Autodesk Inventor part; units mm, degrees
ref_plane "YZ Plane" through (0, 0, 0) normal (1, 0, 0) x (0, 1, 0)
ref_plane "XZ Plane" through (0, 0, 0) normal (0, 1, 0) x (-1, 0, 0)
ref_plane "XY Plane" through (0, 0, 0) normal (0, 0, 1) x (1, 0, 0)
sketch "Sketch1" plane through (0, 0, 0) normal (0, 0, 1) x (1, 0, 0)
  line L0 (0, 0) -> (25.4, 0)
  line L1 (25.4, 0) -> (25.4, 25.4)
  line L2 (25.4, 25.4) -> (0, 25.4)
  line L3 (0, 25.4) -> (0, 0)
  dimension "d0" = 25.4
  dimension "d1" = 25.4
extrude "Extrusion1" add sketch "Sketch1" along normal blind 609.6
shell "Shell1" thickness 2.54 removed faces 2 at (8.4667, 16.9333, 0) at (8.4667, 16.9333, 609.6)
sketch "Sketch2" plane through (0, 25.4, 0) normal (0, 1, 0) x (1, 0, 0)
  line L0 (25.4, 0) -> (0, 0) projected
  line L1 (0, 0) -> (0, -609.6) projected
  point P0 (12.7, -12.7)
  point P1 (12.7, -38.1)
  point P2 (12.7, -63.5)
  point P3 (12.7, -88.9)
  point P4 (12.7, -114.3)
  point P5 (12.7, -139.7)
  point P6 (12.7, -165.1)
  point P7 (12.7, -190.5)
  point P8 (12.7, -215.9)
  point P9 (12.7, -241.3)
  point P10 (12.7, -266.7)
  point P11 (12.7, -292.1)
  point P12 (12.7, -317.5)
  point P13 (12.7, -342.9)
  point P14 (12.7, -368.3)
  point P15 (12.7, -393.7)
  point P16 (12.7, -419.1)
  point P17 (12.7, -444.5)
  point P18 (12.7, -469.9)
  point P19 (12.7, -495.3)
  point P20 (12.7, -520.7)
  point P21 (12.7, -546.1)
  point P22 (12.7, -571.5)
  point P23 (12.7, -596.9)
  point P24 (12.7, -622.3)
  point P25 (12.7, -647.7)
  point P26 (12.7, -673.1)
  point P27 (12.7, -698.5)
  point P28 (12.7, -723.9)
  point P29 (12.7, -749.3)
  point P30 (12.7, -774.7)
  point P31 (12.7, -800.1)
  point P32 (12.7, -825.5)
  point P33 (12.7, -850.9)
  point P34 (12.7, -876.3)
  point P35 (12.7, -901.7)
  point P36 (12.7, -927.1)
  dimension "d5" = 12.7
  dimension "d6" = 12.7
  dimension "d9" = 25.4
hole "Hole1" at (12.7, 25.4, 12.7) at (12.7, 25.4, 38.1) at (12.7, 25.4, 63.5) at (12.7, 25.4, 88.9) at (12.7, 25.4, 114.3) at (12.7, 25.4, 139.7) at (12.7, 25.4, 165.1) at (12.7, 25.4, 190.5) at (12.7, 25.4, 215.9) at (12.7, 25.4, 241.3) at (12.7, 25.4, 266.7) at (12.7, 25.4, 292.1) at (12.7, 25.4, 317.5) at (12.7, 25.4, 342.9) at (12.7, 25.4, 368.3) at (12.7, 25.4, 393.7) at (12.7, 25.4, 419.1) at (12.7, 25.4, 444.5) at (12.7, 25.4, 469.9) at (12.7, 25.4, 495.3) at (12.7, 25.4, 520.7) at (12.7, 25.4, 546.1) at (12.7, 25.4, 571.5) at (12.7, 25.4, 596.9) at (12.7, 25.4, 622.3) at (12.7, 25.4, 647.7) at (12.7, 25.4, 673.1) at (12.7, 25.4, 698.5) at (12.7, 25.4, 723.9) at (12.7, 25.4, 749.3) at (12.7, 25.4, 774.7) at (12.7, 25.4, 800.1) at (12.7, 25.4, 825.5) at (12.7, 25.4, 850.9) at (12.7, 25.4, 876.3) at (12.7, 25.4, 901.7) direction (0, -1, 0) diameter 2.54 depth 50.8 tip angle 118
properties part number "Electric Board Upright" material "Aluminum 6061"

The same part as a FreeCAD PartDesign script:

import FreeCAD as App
import Part
import Sketcher
from FreeCAD import Vector
Q = App.Units.Quantity


def faces_at(feature, points):
    """Names of the faces that lie closest to the given points."""
    faces = feature.Shape.Faces
    near = lambda p: min(range(len(faces)), key=lambda i: faces[i].distToShape(Part.Vertex(*p))[0])
    return sorted({f"Face{near(p) + 1}" for p in points})


def add_polygon(sketch, points):
    """Adds a closed chain of lines whose ends are joined by coincident constraints."""
    first, n = sketch.GeometryCount, len(points)
    for a, b in zip(points, points[1:] + points[:1]):
        sketch.addGeometry(Part.LineSegment(App.Vector(*a, 0), App.Vector(*b, 0)), False)
    for i in range(n):
        sketch.addConstraint(Sketcher.Constraint("Coincident", first + i, 2, first + (i + 1) % n, 1))

doc = App.newDocument("Part")
body = doc.addObject("PartDesign::Body", "Body")

# Sketch on XY plane
sketch1 = doc.addObject("Sketcher::SketchObject", "Sketch")
body.addObject(sketch1)
sketch1.AttachmentSupport = (doc.XY_Plane, [""])
sketch1.MapMode = "FlatFace"
add_polygon(sketch1, [(0, 25.4), (0, 0), (25.4, 0), (25.4, 25.4)])  # lines 0-3
sketch1.addConstraint(Sketcher.Constraint("Vertical", 0))
sketch1.addConstraint(Sketcher.Constraint("Horizontal", 1))
sketch1.addConstraint(Sketcher.Constraint("Vertical", 2))
sketch1.addConstraint(Sketcher.Constraint("Horizontal", 3))
sketch1.addConstraint(Sketcher.Constraint("Coincident", 0, 2, -1, 1))
sketch1.addConstraint(Sketcher.Constraint("Equal", 3, 0))
sketch1.addConstraint(Sketcher.Constraint("DistanceX", 1, 1, 1, 2, Q("1 in")))
pad1 = doc.addObject("PartDesign::Pad", "Pad")
body.addObject(pad1)
pad1.Profile = sketch1
pad1.Length = Q("24 in")
doc.recompute()

thickness = doc.addObject("PartDesign::Thickness", "Thickness")
body.addObject(thickness)
thickness.Base = (pad1, faces_at(pad1, [(8.467, 16.933, 0), (8.467, 16.933, 609.6)]))
thickness.Value = Q("0.1 in")
thickness.Reversed = True
thickness.Join = "Intersection"

# Sketch on XZ plane
sketch2 = doc.addObject("Sketcher::SketchObject", "Sketch001")
body.addObject(sketch2)
sketch2.AttachmentSupport = (doc.XZ_Plane, [""])
sketch2.MapMode = "FlatFace"
sketch2.AttachmentOffset = App.Placement(Vector(0, 0, -1 * 25.4), App.Rotation())
sketch2.addGeometry(Part.Circle(Vector(12.7, 12.7, 0), Vector(0, 0, 1), 1.27), False)
sketch2.addGeometry(Part.Circle(Vector(12.7, 38.1, 0), Vector(0, 0, 1), 1.27), False)
sketch2.addGeometry(Part.Circle(Vector(12.7, 63.5, 0), Vector(0, 0, 1), 1.27), False)
sketch2.addGeometry(Part.Circle(Vector(12.7, 88.9, 0), Vector(0, 0, 1), 1.27), False)
sketch2.addGeometry(Part.Circle(Vector(12.7, 114.3, 0), Vector(0, 0, 1), 1.27), False)
sketch2.addGeometry(Part.Circle(Vector(12.7, 139.7, 0), Vector(0, 0, 1), 1.27), False)
sketch2.addGeometry(Part.Circle(Vector(12.7, 165.1, 0), Vector(0, 0, 1), 1.27), False)
sketch2.addGeometry(Part.Circle(Vector(12.7, 190.5, 0), Vector(0, 0, 1), 1.27), False)
sketch2.addGeometry(Part.Circle(Vector(12.7, 215.9, 0), Vector(0, 0, 1), 1.27), False)
sketch2.addGeometry(Part.Circle(Vector(12.7, 241.3, 0), Vector(0, 0, 1), 1.27), False)
sketch2.addGeometry(Part.Circle(Vector(12.7, 266.7, 0), Vector(0, 0, 1), 1.27), False)
sketch2.addGeometry(Part.Circle(Vector(12.7, 292.1, 0), Vector(0, 0, 1), 1.27), False)
sketch2.addGeometry(Part.Circle(Vector(12.7, 317.5, 0), Vector(0, 0, 1), 1.27), False)
sketch2.addGeometry(Part.Circle(Vector(12.7, 342.9, 0), Vector(0, 0, 1), 1.27), False)
sketch2.addGeometry(Part.Circle(Vector(12.7, 368.3, 0), Vector(0, 0, 1), 1.27), False)
sketch2.addGeometry(Part.Circle(Vector(12.7, 393.7, 0), Vector(0, 0, 1), 1.27), False)
sketch2.addGeometry(Part.Circle(Vector(12.7, 419.1, 0), Vector(0, 0, 1), 1.27), False)
sketch2.addGeometry(Part.Circle(Vector(12.7, 444.5, 0), Vector(0, 0, 1), 1.27), False)
sketch2.addGeometry(Part.Circle(Vector(12.7, 469.9, 0), Vector(0, 0, 1), 1.27), False)
sketch2.addGeometry(Part.Circle(Vector(12.7, 495.3, 0), Vector(0, 0, 1), 1.27), False)
sketch2.addGeometry(Part.Circle(Vector(12.7, 520.7, 0), Vector(0, 0, 1), 1.27), False)
sketch2.addGeometry(Part.Circle(Vector(12.7, 546.1, 0), Vector(0, 0, 1), 1.27), False)
sketch2.addGeometry(Part.Circle(Vector(12.7, 571.5, 0), Vector(0, 0, 1), 1.27), False)
sketch2.addGeometry(Part.Circle(Vector(12.7, 596.9, 0), Vector(0, 0, 1), 1.27), False)
sketch2.addGeometry(Part.Circle(Vector(12.7, 622.3, 0), Vector(0, 0, 1), 1.27), False)
sketch2.addGeometry(Part.Circle(Vector(12.7, 647.7, 0), Vector(0, 0, 1), 1.27), False)
sketch2.addGeometry(Part.Circle(Vector(12.7, 673.1, 0), Vector(0, 0, 1), 1.27), False)
sketch2.addGeometry(Part.Circle(Vector(12.7, 698.5, 0), Vector(0, 0, 1), 1.27), False)
sketch2.addGeometry(Part.Circle(Vector(12.7, 723.9, 0), Vector(0, 0, 1), 1.27), False)
sketch2.addGeometry(Part.Circle(Vector(12.7, 749.3, 0), Vector(0, 0, 1), 1.27), False)
sketch2.addGeometry(Part.Circle(Vector(12.7, 774.7, 0), Vector(0, 0, 1), 1.27), False)
sketch2.addGeometry(Part.Circle(Vector(12.7, 800.1, 0), Vector(0, 0, 1), 1.27), False)
sketch2.addGeometry(Part.Circle(Vector(12.7, 825.5, 0), Vector(0, 0, 1), 1.27), False)
sketch2.addGeometry(Part.Circle(Vector(12.7, 850.9, 0), Vector(0, 0, 1), 1.27), False)
sketch2.addGeometry(Part.Circle(Vector(12.7, 876.3, 0), Vector(0, 0, 1), 1.27), False)
sketch2.addGeometry(Part.Circle(Vector(12.7, 901.7, 0), Vector(0, 0, 1), 1.27), False)
sketch2.addConstraint(Sketcher.Constraint("Equal", 0, 1))
sketch2.addConstraint(Sketcher.Constraint("Equal", 1, 2))
sketch2.addConstraint(Sketcher.Constraint("Equal", 2, 3))
sketch2.addConstraint(Sketcher.Constraint("Equal", 3, 4))
sketch2.addConstraint(Sketcher.Constraint("Equal", 4, 5))
sketch2.addConstraint(Sketcher.Constraint("Equal", 5, 6))
sketch2.addConstraint(Sketcher.Constraint("Equal", 6, 7))
sketch2.addConstraint(Sketcher.Constraint("Equal", 7, 8))
sketch2.addConstraint(Sketcher.Constraint("Equal", 8, 9))
sketch2.addConstraint(Sketcher.Constraint("Equal", 9, 10))
sketch2.addConstraint(Sketcher.Constraint("Equal", 10, 11))
sketch2.addConstraint(Sketcher.Constraint("Equal", 11, 12))
sketch2.addConstraint(Sketcher.Constraint("Equal", 12, 13))
sketch2.addConstraint(Sketcher.Constraint("Equal", 13, 14))
sketch2.addConstraint(Sketcher.Constraint("Equal", 14, 15))
sketch2.addConstraint(Sketcher.Constraint("Equal", 15, 16))
sketch2.addConstraint(Sketcher.Constraint("Equal", 16, 17))
sketch2.addConstraint(Sketcher.Constraint("Equal", 17, 18))
sketch2.addConstraint(Sketcher.Constraint("Equal", 18, 19))
sketch2.addConstraint(Sketcher.Constraint("Equal", 19, 20))
sketch2.addConstraint(Sketcher.Constraint("Equal", 20, 21))
sketch2.addConstraint(Sketcher.Constraint("Equal", 21, 22))
sketch2.addConstraint(Sketcher.Constraint("Equal", 22, 23))
sketch2.addConstraint(Sketcher.Constraint("Equal", 23, 24))
sketch2.addConstraint(Sketcher.Constraint("Equal", 24, 25))
sketch2.addConstraint(Sketcher.Constraint("Equal", 25, 26))
sketch2.addConstraint(Sketcher.Constraint("Equal", 26, 27))
sketch2.addConstraint(Sketcher.Constraint("Equal", 27, 28))
sketch2.addConstraint(Sketcher.Constraint("Equal", 28, 29))
sketch2.addConstraint(Sketcher.Constraint("Equal", 29, 30))
sketch2.addConstraint(Sketcher.Constraint("Equal", 30, 31))
sketch2.addConstraint(Sketcher.Constraint("Equal", 31, 32))
sketch2.addConstraint(Sketcher.Constraint("Equal", 32, 33))
sketch2.addConstraint(Sketcher.Constraint("Equal", 33, 34))
sketch2.addConstraint(Sketcher.Constraint("Equal", 34, 35))
sketch2.addConstraint(Sketcher.Constraint("Vertical", 0, 3, 1, 3))
sketch2.addConstraint(Sketcher.Constraint("Vertical", 1, 3, 2, 3))
sketch2.addConstraint(Sketcher.Constraint("Vertical", 2, 3, 3, 3))
sketch2.addConstraint(Sketcher.Constraint("Vertical", 3, 3, 4, 3))
sketch2.addConstraint(Sketcher.Constraint("Vertical", 4, 3, 5, 3))
sketch2.addConstraint(Sketcher.Constraint("Vertical", 5, 3, 6, 3))
sketch2.addConstraint(Sketcher.Constraint("Vertical", 6, 3, 7, 3))
sketch2.addConstraint(Sketcher.Constraint("Vertical", 7, 3, 8, 3))
sketch2.addConstraint(Sketcher.Constraint("Vertical", 8, 3, 9, 3))
sketch2.addConstraint(Sketcher.Constraint("Vertical", 9, 3, 10, 3))
sketch2.addConstraint(Sketcher.Constraint("Vertical", 10, 3, 11, 3))
sketch2.addConstraint(Sketcher.Constraint("Vertical", 11, 3, 12, 3))
sketch2.addConstraint(Sketcher.Constraint("Vertical", 12, 3, 13, 3))
sketch2.addConstraint(Sketcher.Constraint("Vertical", 13, 3, 14, 3))
sketch2.addConstraint(Sketcher.Constraint("Vertical", 14, 3, 15, 3))
sketch2.addConstraint(Sketcher.Constraint("Vertical", 15, 3, 16, 3))
sketch2.addConstraint(Sketcher.Constraint("Vertical", 16, 3, 17, 3))
sketch2.addConstraint(Sketcher.Constraint("Vertical", 17, 3, 18, 3))
sketch2.addConstraint(Sketcher.Constraint("Vertical", 18, 3, 19, 3))
sketch2.addConstraint(Sketcher.Constraint("Vertical", 19, 3, 20, 3))
sketch2.addConstraint(Sketcher.Constraint("Vertical", 20, 3, 21, 3))
sketch2.addConstraint(Sketcher.Constraint("Vertical", 21, 3, 22, 3))
sketch2.addConstraint(Sketcher.Constraint("Vertical", 22, 3, 23, 3))
sketch2.addConstraint(Sketcher.Constraint("Vertical", 23, 3, 24, 3))
sketch2.addConstraint(Sketcher.Constraint("Vertical", 24, 3, 25, 3))
sketch2.addConstraint(Sketcher.Constraint("Vertical", 25, 3, 26, 3))
sketch2.addConstraint(Sketcher.Constraint("Vertical", 26, 3, 27, 3))
sketch2.addConstraint(Sketcher.Constraint("Vertical", 27, 3, 28, 3))
sketch2.addConstraint(Sketcher.Constraint("Vertical", 28, 3, 29, 3))
sketch2.addConstraint(Sketcher.Constraint("Vertical", 29, 3, 30, 3))
sketch2.addConstraint(Sketcher.Constraint("Vertical", 30, 3, 31, 3))
sketch2.addConstraint(Sketcher.Constraint("Vertical", 31, 3, 32, 3))
sketch2.addConstraint(Sketcher.Constraint("Vertical", 32, 3, 33, 3))
sketch2.addConstraint(Sketcher.Constraint("Vertical", 33, 3, 34, 3))
sketch2.addConstraint(Sketcher.Constraint("Vertical", 34, 3, 35, 3))
sketch2.addConstraint(Sketcher.Constraint("Diameter", 0, Q("0.1 in")))
sketch2.addConstraint(Sketcher.Constraint("DistanceY", 0, 3, 1, 3, Q("1 in")))
sketch2.addConstraint(Sketcher.Constraint("DistanceY", 1, 3, 2, 3, Q("1 in")))
sketch2.addConstraint(Sketcher.Constraint("DistanceY", 2, 3, 3, 3, Q("1 in")))
sketch2.addConstraint(Sketcher.Constraint("DistanceY", 3, 3, 4, 3, Q("1 in")))
sketch2.addConstraint(Sketcher.Constraint("DistanceY", 4, 3, 5, 3, Q("1 in")))
sketch2.addConstraint(Sketcher.Constraint("DistanceY", 5, 3, 6, 3, Q("1 in")))
sketch2.addConstraint(Sketcher.Constraint("DistanceY", 6, 3, 7, 3, Q("1 in")))
sketch2.addConstraint(Sketcher.Constraint("DistanceY", 7, 3, 8, 3, Q("1 in")))
sketch2.addConstraint(Sketcher.Constraint("DistanceY", 8, 3, 9, 3, Q("1 in")))
sketch2.addConstraint(Sketcher.Constraint("DistanceY", 9, 3, 10, 3, Q("1 in")))
sketch2.addConstraint(Sketcher.Constraint("DistanceY", 10, 3, 11, 3, Q("1 in")))
sketch2.addConstraint(Sketcher.Constraint("DistanceY", 11, 3, 12, 3, Q("1 in")))
sketch2.addConstraint(Sketcher.Constraint("DistanceY", 12, 3, 13, 3, Q("1 in")))
sketch2.addConstraint(Sketcher.Constraint("DistanceY", 13, 3, 14, 3, Q("1 in")))
sketch2.addConstraint(Sketcher.Constraint("DistanceY", 14, 3, 15, 3, Q("1 in")))
sketch2.addConstraint(Sketcher.Constraint("DistanceY", 15, 3, 16, 3, Q("1 in")))
sketch2.addConstraint(Sketcher.Constraint("DistanceY", 16, 3, 17, 3, Q("1 in")))
sketch2.addConstraint(Sketcher.Constraint("DistanceY", 17, 3, 18, 3, Q("1 in")))
sketch2.addConstraint(Sketcher.Constraint("DistanceY", 18, 3, 19, 3, Q("1 in")))
sketch2.addConstraint(Sketcher.Constraint("DistanceY", 19, 3, 20, 3, Q("1 in")))
sketch2.addConstraint(Sketcher.Constraint("DistanceY", 20, 3, 21, 3, Q("1 in")))
sketch2.addConstraint(Sketcher.Constraint("DistanceY", 21, 3, 22, 3, Q("1 in")))
sketch2.addConstraint(Sketcher.Constraint("DistanceY", 22, 3, 23, 3, Q("1 in")))
sketch2.addConstraint(Sketcher.Constraint("DistanceY", 23, 3, 24, 3, Q("1 in")))
sketch2.addConstraint(Sketcher.Constraint("DistanceY", 24, 3, 25, 3, Q("1 in")))
sketch2.addConstraint(Sketcher.Constraint("DistanceY", 25, 3, 26, 3, Q("1 in")))
sketch2.addConstraint(Sketcher.Constraint("DistanceY", 26, 3, 27, 3, Q("1 in")))
sketch2.addConstraint(Sketcher.Constraint("DistanceY", 27, 3, 28, 3, Q("1 in")))
sketch2.addConstraint(Sketcher.Constraint("DistanceY", 28, 3, 29, 3, Q("1 in")))
sketch2.addConstraint(Sketcher.Constraint("DistanceY", 29, 3, 30, 3, Q("1 in")))
sketch2.addConstraint(Sketcher.Constraint("DistanceY", 30, 3, 31, 3, Q("1 in")))
sketch2.addConstraint(Sketcher.Constraint("DistanceY", 31, 3, 32, 3, Q("1 in")))
sketch2.addConstraint(Sketcher.Constraint("DistanceY", 32, 3, 33, 3, Q("1 in")))
sketch2.addConstraint(Sketcher.Constraint("DistanceY", 33, 3, 34, 3, Q("1 in")))
sketch2.addConstraint(Sketcher.Constraint("DistanceY", 34, 3, 35, 3, Q("1 in")))
sketch2.addConstraint(Sketcher.Constraint("DistanceX", -1, 1, 0, 3, Q("0.5 in")))
sketch2.addConstraint(Sketcher.Constraint("DistanceY", -1, 1, 0, 3, Q("0.5 in")))
doc.recompute()
hole = doc.addObject("PartDesign::Hole", "Hole")
body.addObject(hole)
hole.Profile = sketch2
hole.ThreadType = "None"
hole.Diameter = Q("0.1 in")
hole.DepthType = "Dimension"
hole.Depth = Q("2 in")
hole.DrillPoint = "Angled"
hole.DrillPointAngle = 118
hole.Reversed = True

doc.recompute()
